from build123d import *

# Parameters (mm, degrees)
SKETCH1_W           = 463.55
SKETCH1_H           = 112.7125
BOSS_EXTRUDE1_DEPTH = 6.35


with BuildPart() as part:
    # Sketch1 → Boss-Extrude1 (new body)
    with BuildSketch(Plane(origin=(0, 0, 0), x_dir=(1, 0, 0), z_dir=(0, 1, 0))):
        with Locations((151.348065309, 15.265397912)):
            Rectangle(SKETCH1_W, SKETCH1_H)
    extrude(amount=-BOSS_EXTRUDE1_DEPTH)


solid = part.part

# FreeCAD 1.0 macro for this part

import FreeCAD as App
import Part
import Sketcher
Q = App.Units.Quantity


def add_polygon(sketch, points):
    """Adds a closed chain of lines whose ends are joined by coincident constraints."""
    first, n = sketch.GeometryCount, len(points)
    for a, b in zip(points, points[1:] + points[:1]):
        sketch.addGeometry(Part.LineSegment(App.Vector(*a, 0), App.Vector(*b, 0)), False)
    for i in range(n):
        sketch.addConstraint(Sketcher.Constraint("Coincident", first + i, 2, first + (i + 1) % n, 1))

doc = App.newDocument("Part")
body = doc.addObject("PartDesign::Body", "Body")

sketch1 = doc.addObject("Sketcher::SketchObject", "Sketch")
body.addObject(sketch1)
sketch1.AttachmentSupport = (doc.XZ_Plane, [""])
sketch1.MapMode = "FlatFace"
add_polygon(sketch1, [(-80, -72), (-80, 41), (383, 41), (383, -72)])
sketch1.addConstraint(Sketcher.Constraint("Vertical", 0))
sketch1.addConstraint(Sketcher.Constraint("Horizontal", 1))
sketch1.addConstraint(Sketcher.Constraint("Vertical", 2))
sketch1.addConstraint(Sketcher.Constraint("Horizontal", 3))
sketch1.addConstraint(Sketcher.Constraint("DistanceX", 1, 1, 1, 2, Q("18.25 in")))
sketch1.addConstraint(Sketcher.Constraint("DistanceY", 0, 1, 0, 2, Q("4.4375 in")))
sketch1.addConstraint(Sketcher.Constraint("DistanceX", 0, 2, -1, 1, Q("80.426935 mm")))
sketch1.addConstraint(Sketcher.Constraint("DistanceY", -1, 1, 0, 2, Q("41.090852 mm")))
pad1 = doc.addObject("PartDesign::Pad", "Pad")
body.addObject(pad1)
pad1.Profile = sketch1
pad1.Length = Q("0.25 in")

doc.recompute()
